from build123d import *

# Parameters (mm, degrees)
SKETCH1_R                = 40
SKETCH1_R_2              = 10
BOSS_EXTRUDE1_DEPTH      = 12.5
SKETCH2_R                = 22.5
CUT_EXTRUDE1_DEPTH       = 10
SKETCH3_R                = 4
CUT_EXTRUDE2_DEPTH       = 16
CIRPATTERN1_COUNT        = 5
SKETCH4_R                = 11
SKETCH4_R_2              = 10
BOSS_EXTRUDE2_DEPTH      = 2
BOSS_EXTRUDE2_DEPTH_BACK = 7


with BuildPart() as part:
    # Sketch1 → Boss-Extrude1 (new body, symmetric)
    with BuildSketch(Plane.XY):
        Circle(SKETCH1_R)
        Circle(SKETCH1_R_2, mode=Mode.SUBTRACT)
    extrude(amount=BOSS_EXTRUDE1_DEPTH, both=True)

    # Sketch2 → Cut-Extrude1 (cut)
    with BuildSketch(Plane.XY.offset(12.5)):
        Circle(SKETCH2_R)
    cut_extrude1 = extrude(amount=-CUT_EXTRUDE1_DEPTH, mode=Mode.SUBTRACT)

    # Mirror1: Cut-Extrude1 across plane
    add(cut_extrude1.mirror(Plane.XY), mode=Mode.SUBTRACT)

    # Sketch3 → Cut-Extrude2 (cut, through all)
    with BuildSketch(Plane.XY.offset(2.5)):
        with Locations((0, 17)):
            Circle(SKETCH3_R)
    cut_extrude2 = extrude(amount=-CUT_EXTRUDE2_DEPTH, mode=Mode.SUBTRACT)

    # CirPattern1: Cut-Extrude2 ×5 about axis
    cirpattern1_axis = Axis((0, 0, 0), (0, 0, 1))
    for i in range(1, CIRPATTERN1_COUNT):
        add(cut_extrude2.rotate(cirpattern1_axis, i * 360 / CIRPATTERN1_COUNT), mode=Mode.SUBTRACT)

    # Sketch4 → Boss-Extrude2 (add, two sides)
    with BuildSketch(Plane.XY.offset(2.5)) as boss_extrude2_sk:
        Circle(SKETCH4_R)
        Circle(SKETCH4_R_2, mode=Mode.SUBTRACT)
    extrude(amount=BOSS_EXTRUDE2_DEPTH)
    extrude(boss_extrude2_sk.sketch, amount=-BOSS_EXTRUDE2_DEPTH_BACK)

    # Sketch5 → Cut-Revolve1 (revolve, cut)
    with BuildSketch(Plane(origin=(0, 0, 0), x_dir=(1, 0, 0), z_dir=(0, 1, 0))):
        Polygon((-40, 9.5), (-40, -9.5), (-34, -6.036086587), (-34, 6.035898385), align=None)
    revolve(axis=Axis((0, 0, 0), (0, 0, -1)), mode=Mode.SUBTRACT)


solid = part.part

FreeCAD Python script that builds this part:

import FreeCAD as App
import Part
import Sketcher
from FreeCAD import Vector
Q = App.Units.Quantity


def add_polygon(sketch, points):
    """Adds a closed chain of lines whose ends are joined by coincident constraints."""
    first, n = sketch.GeometryCount, len(points)
    for a, b in zip(points, points[1:] + points[:1]):
        sketch.addGeometry(Part.LineSegment(App.Vector(*a, 0), App.Vector(*b, 0)), False)
    for i in range(n):
        sketch.addConstraint(Sketcher.Constraint("Coincident", first + i, 2, first + (i + 1) % n, 1))

doc = App.newDocument("Part")
body = doc.addObject("PartDesign::Body", "Body")

# Sketch on XY plane
sketch1 = body.newObject("Sketcher::SketchObject", "Sketch")
sketch1.AttachmentSupport = (doc.getObject("XY_Plane"), [""])
sketch1.MapMode = "FlatFace"
sketch1.addGeometry([
    Part.Circle(Vector(0, 0, 0), Vector(0, 0, 1), 40),
    Part.Circle(Vector(0, 0, 0), Vector(0, 0, 1), 10),
], False)
sketch1.addConstraint([
    Sketcher.Constraint("Coincident", 0, 3, -1, 1),
    Sketcher.Constraint("Coincident", 1, 3, -1, 1),
    Sketcher.Constraint("Diameter", 0, Q("80 mm")),
    Sketcher.Constraint("Diameter", 1, Q("20 mm")),
])
pad1 = body.newObject("PartDesign::Pad", "Pad")
pad1.Profile = sketch1
pad1.Length = 25
pad1.Midplane = True

# Sketch on XY plane
sketch2 = body.newObject("Sketcher::SketchObject", "Sketch001")
sketch2.AttachmentSupport = (doc.getObject("XY_Plane"), [""])
sketch2.MapMode = "FlatFace"
sketch2.AttachmentOffset = App.Placement(Vector(0, 0, 12.5), App.Rotation())
sketch2.addGeometry(Part.Circle(Vector(0, 0, 0), Vector(0, 0, 1), 22), False)
sketch2.addConstraint([
    Sketcher.Constraint("Coincident", 0, 3, -1, 1),
    Sketcher.Constraint("Diameter", 0, Q("45 mm")),
])
pocket1 = body.newObject("PartDesign::Pocket", "Pocket")
pocket1.Profile = sketch2
pocket1.Length = 10
doc.recompute()

mirrored = body.newObject("PartDesign::Mirrored", "Mirrored")
mirrored.Originals = [pocket1]
mirrored.MirrorPlane = (doc.getObject("XY_Plane"), [""])
body.Tip = mirrored

# Sketch on XY plane
sketch3 = body.newObject("Sketcher::SketchObject", "Sketch002")
sketch3.AttachmentSupport = (doc.getObject("XY_Plane"), [""])
sketch3.MapMode = "FlatFace"
sketch3.AttachmentOffset = App.Placement(Vector(0, 0, 2.5), App.Rotation())
sketch3.addGeometry(Part.Circle(Vector(0, 17, 0), Vector(0, 0, 1), 4), False)
sketch3.addConstraint([
    Sketcher.Constraint("PointOnObject", 0, 3, -2),
    Sketcher.Constraint("Diameter", 0, Q("8 mm")),
    Sketcher.Constraint("DistanceY", -1, 1, 0, 3, Q("17 mm")),
])
pocket2 = body.newObject("PartDesign::Pocket", "Pocket001")
pocket2.Profile = sketch3
pocket2.Type = "ThroughAll"
doc.recompute()

polarpattern = body.newObject("PartDesign::PolarPattern", "PolarPattern")
polarpattern.Originals = [pocket2]
polarpattern.Axis = (doc.getObject("Z_Axis"), [""])
polarpattern.Angle = 360
polarpattern.Occurrences = 5
body.Tip = polarpattern

# Sketch on XY plane
sketch4 = body.newObject("Sketcher::SketchObject", "Sketch003")
sketch4.AttachmentSupport = (doc.getObject("XY_Plane"), [""])
sketch4.MapMode = "FlatFace"
sketch4.AttachmentOffset = App.Placement(Vector(0, 0, 2.5), App.Rotation())
sketch4.addGeometry([
    Part.Circle(Vector(0, 0, 0), Vector(0, 0, 1), 11),
    Part.Circle(Vector(0, 0, 0), Vector(0, 0, 1), 10),
], False)
sketch4.addConstraint([
    Sketcher.Constraint("Coincident", 0, 3, -1, 1),
    Sketcher.Constraint("Coincident", 1, 3, -1, 1),
    Sketcher.Constraint("Diameter", 0, Q("22 mm")),
    Sketcher.Constraint("Diameter", 1, Q("20 mm")),
])
pad2 = body.newObject("PartDesign::Pad", "Pad001")
pad2.Profile = sketch4
pad2.Type = "TwoLengths"
pad2.Length = 2
pad2.Length2 = 7

# Sketch on XZ plane
sketch5 = body.newObject("Sketcher::SketchObject", "Sketch004")
sketch5.AttachmentSupport = (doc.getObject("XZ_Plane"), [""])
sketch5.MapMode = "FlatFace"
add_polygon(sketch5, [(-40, -10), (-40, 10), (-34, 6), (-34, -6)])  # lines 0-3
sketch5.addConstraint([
    Sketcher.Constraint("Vertical", 0),
    Sketcher.Constraint("Vertical", 2),
    Sketcher.Constraint("DistanceY", 0, 1, 0, 2, Q("19 mm")),
    Sketcher.Constraint("Angle", 3, Q("-150 deg")),
    Sketcher.Constraint("DistanceX", 0, 2, -1, 1, Q("40 mm")),
    Sketcher.Constraint("DistanceX", 1, 2, -1, 1, Q("34 mm")),
    Sketcher.Constraint("DistanceY", -1, 1, 0, 2, Q("9.5 mm")),
    Sketcher.Constraint("Distance", 1, Q("6.928109 mm")),
])
groove = body.newObject("PartDesign::Groove", "Groove")
groove.Profile = sketch5
groove.ReferenceAxis = (sketch5, ["V_Axis"])
groove.Angle = 360

doc.recompute()
